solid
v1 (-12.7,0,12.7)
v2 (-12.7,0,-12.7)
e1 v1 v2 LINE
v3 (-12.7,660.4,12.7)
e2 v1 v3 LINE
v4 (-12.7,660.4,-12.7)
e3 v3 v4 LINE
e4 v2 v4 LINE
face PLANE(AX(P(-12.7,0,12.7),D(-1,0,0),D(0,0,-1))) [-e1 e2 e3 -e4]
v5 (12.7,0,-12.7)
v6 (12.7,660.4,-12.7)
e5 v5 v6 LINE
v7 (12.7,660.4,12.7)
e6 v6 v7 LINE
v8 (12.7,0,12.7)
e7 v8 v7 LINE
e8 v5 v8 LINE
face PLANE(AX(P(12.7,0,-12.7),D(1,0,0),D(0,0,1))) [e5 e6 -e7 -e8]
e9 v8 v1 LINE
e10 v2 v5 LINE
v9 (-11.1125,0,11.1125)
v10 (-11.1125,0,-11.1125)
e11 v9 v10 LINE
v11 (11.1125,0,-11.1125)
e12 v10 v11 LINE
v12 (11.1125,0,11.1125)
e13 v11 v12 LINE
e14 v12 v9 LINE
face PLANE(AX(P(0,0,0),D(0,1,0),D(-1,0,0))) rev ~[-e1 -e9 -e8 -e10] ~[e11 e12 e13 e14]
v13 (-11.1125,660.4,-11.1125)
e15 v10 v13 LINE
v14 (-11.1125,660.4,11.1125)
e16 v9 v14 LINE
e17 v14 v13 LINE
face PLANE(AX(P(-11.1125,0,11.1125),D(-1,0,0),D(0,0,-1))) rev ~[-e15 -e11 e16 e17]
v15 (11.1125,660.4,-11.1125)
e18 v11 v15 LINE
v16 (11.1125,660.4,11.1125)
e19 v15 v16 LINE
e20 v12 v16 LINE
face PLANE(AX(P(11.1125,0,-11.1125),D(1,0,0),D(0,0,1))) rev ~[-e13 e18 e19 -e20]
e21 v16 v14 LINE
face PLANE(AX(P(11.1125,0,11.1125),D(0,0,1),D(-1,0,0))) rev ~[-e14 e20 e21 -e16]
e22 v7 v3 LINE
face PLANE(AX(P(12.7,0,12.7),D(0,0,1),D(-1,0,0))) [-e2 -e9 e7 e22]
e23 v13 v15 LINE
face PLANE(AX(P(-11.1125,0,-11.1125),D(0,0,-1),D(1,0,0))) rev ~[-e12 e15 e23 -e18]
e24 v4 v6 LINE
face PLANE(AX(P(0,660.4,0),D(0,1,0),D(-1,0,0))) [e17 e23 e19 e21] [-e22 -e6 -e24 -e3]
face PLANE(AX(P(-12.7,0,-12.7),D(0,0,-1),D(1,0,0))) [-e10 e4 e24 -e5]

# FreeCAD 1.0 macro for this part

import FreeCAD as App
import Part
import Sketcher
from FreeCAD import Vector
Q = App.Units.Quantity


def add_polygon(sketch, points):
    """Adds a closed chain of lines whose ends are joined by coincident constraints."""
    first, n = sketch.GeometryCount, len(points)
    for a, b in zip(points, points[1:] + points[:1]):
        sketch.addGeometry(Part.LineSegment(App.Vector(*a, 0), App.Vector(*b, 0)), False)
    for i in range(n):
        sketch.addConstraint(Sketcher.Constraint("Coincident", first + i, 2, first + (i + 1) % n, 1))

doc = App.newDocument("Part")
body = doc.addObject("PartDesign::Body", "Body")

sketch1 = body.newObject("Sketcher::SketchObject", "Sketch")
sketch1.AttachmentSupport = (doc.getObject("XZ_Plane"), [""])
sketch1.MapMode = "FlatFace"
add_polygon(sketch1, [(-13, -13), (-13, 13), (13, 13), (13, -13)])
add_polygon(sketch1, [(11, 11), (-11, 11), (-11, -11), (11, -11)])
sketch1.addConstraint([
    Sketcher.Constraint("Vertical", 0),
    Sketcher.Constraint("Horizontal", 1),
    Sketcher.Constraint("Vertical", 2),
    Sketcher.Constraint("Horizontal", 3),
    Sketcher.Constraint("Horizontal", 4),
    Sketcher.Constraint("Vertical", 5),
    Sketcher.Constraint("Horizontal", 6),
    Sketcher.Constraint("Vertical", 7),
    Sketcher.Constraint("Symmetric", 0, 2, 2, 2, -1, 1),
    Sketcher.Constraint("Symmetric", 4, 2, 6, 2, -1, 1),
    Sketcher.Constraint("Equal", 3, 0),
    Sketcher.Constraint("Equal", 6, 5),
    Sketcher.Constraint("DistanceX", 1, 1, 1, 2, Q("1 in")),
    Sketcher.Constraint("DistanceX", 0, 2, 4, 2, Q("0.0625 in")),
])
pad1 = body.newObject("PartDesign::Pad", "Pad")
pad1.Profile = sketch1
pad1.Length = Q("26 in")
pad1.Reversed = True

doc.recompute()
